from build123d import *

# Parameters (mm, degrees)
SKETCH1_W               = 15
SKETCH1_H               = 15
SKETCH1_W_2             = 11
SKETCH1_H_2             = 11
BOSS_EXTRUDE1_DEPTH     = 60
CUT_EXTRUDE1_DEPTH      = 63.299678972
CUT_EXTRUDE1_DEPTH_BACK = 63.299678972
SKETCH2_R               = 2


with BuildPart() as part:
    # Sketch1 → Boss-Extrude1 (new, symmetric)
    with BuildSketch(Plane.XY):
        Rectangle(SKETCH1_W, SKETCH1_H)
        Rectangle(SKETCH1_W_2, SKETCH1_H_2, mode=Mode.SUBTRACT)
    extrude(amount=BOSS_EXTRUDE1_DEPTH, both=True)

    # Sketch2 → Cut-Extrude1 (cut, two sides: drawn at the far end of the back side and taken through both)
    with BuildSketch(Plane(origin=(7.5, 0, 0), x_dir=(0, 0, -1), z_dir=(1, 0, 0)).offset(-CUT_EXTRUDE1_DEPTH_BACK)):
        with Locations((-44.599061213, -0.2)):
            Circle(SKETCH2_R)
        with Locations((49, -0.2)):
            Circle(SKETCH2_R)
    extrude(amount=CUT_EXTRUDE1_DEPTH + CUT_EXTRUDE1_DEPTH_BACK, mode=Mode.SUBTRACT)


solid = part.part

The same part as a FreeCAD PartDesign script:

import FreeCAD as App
import Part
import Sketcher

V = App.Vector
Q = App.Units.Quantity

doc = App.newDocument("Part")
body = doc.addObject("PartDesign::Body", "Body")

sketch1 = body.newObject("Sketcher::SketchObject", "Sketch")
sketch1.AttachmentSupport = (doc.getObject("XY_Plane"), [""])
sketch1.MapMode = "FlatFace"
sketch1.addGeometry([
    Part.LineSegment(V(-8, 8, 0), V(-8, -8, 0)),
    Part.LineSegment(V(-8, -8, 0), V(8, -8, 0)),
    Part.LineSegment(V(8, -8, 0), V(8, 8, 0)),
    Part.LineSegment(V(8, 8, 0), V(-8, 8, 0)),
    Part.LineSegment(V(6, -6, 0), V(-6, -6, 0)),
    Part.LineSegment(V(-6, -6, 0), V(-6, 6, 0)),
    Part.LineSegment(V(-6, 6, 0), V(6, 6, 0)),
    Part.LineSegment(V(6, 6, 0), V(6, -6, 0)),
], False)
sketch1.addConstraint([
    Sketcher.Constraint("Coincident", 0, 2, 1, 1),
    Sketcher.Constraint("Coincident", 1, 2, 2, 1),
    Sketcher.Constraint("Coincident", 2, 2, 3, 1),
    Sketcher.Constraint("Coincident", 3, 2, 0, 1),
    Sketcher.Constraint("Coincident", 4, 2, 5, 1),
    Sketcher.Constraint("Coincident", 5, 2, 6, 1),
    Sketcher.Constraint("Coincident", 6, 2, 7, 1),
    Sketcher.Constraint("Coincident", 7, 2, 4, 1),
    Sketcher.Constraint("Vertical", 0),
    Sketcher.Constraint("Horizontal", 1),
    Sketcher.Constraint("Vertical", 2),
    Sketcher.Constraint("Horizontal", 3),
    Sketcher.Constraint("Horizontal", 4),
    Sketcher.Constraint("Vertical", 5),
    Sketcher.Constraint("Horizontal", 6),
    Sketcher.Constraint("Vertical", 7),
    Sketcher.Constraint("Symmetric", 0, 2, 2, 2, -1, 1),
    Sketcher.Constraint("Symmetric", 4, 2, 6, 2, -1, 1),
    Sketcher.Constraint("Equal", 3, 0),
    Sketcher.Constraint("Equal", 6, 5),
    Sketcher.Constraint("DistanceX", 1, 1, 1, 2, Q("15 mm")),
    Sketcher.Constraint("DistanceX", 4, 2, 4, 1, Q("11 mm")),
])
pad1 = body.newObject("PartDesign::Pad", "Pad")
pad1.Profile = sketch1
pad1.Length = 120
pad1.Midplane = True

sketch2 = body.newObject("Sketcher::SketchObject", "Sketch001")
sketch2.AttachmentSupport = (doc.getObject("YZ_Plane"), [""])
sketch2.MapMode = "FlatFace"
sketch2.AttachmentOffset = App.Placement(V(0, 0, 7.5), App.Rotation())
sketch2.addGeometry([
    Part.Circle(V(-0.2, 44.6, 0), V(0, 0, 1), 2),
    Part.Circle(V(-0.2, -49, 0), V(0, 0, 1), 2),
], False)
sketch2.addConstraint([
    Sketcher.Constraint("Equal", 0, 1),
    Sketcher.Constraint("Vertical", 0, 3, 1, 3),
    Sketcher.Constraint("Diameter", 0, Q("4 mm")),
    Sketcher.Constraint("DistanceY", 1, 3, -1, 1, Q("49 mm")),
    Sketcher.Constraint("DistanceX", 0, 3, -1, 1, Q("0.2 mm")),
    Sketcher.Constraint("DistanceY", -1, 1, 0, 3, Q("44.599061 mm")),
])
pocket1 = body.newObject("PartDesign::Pocket", "Pocket")
pocket1.Profile = sketch2
pocket1.Type = "ThroughAll"
pocket1.Midplane = True

doc.recompute()
